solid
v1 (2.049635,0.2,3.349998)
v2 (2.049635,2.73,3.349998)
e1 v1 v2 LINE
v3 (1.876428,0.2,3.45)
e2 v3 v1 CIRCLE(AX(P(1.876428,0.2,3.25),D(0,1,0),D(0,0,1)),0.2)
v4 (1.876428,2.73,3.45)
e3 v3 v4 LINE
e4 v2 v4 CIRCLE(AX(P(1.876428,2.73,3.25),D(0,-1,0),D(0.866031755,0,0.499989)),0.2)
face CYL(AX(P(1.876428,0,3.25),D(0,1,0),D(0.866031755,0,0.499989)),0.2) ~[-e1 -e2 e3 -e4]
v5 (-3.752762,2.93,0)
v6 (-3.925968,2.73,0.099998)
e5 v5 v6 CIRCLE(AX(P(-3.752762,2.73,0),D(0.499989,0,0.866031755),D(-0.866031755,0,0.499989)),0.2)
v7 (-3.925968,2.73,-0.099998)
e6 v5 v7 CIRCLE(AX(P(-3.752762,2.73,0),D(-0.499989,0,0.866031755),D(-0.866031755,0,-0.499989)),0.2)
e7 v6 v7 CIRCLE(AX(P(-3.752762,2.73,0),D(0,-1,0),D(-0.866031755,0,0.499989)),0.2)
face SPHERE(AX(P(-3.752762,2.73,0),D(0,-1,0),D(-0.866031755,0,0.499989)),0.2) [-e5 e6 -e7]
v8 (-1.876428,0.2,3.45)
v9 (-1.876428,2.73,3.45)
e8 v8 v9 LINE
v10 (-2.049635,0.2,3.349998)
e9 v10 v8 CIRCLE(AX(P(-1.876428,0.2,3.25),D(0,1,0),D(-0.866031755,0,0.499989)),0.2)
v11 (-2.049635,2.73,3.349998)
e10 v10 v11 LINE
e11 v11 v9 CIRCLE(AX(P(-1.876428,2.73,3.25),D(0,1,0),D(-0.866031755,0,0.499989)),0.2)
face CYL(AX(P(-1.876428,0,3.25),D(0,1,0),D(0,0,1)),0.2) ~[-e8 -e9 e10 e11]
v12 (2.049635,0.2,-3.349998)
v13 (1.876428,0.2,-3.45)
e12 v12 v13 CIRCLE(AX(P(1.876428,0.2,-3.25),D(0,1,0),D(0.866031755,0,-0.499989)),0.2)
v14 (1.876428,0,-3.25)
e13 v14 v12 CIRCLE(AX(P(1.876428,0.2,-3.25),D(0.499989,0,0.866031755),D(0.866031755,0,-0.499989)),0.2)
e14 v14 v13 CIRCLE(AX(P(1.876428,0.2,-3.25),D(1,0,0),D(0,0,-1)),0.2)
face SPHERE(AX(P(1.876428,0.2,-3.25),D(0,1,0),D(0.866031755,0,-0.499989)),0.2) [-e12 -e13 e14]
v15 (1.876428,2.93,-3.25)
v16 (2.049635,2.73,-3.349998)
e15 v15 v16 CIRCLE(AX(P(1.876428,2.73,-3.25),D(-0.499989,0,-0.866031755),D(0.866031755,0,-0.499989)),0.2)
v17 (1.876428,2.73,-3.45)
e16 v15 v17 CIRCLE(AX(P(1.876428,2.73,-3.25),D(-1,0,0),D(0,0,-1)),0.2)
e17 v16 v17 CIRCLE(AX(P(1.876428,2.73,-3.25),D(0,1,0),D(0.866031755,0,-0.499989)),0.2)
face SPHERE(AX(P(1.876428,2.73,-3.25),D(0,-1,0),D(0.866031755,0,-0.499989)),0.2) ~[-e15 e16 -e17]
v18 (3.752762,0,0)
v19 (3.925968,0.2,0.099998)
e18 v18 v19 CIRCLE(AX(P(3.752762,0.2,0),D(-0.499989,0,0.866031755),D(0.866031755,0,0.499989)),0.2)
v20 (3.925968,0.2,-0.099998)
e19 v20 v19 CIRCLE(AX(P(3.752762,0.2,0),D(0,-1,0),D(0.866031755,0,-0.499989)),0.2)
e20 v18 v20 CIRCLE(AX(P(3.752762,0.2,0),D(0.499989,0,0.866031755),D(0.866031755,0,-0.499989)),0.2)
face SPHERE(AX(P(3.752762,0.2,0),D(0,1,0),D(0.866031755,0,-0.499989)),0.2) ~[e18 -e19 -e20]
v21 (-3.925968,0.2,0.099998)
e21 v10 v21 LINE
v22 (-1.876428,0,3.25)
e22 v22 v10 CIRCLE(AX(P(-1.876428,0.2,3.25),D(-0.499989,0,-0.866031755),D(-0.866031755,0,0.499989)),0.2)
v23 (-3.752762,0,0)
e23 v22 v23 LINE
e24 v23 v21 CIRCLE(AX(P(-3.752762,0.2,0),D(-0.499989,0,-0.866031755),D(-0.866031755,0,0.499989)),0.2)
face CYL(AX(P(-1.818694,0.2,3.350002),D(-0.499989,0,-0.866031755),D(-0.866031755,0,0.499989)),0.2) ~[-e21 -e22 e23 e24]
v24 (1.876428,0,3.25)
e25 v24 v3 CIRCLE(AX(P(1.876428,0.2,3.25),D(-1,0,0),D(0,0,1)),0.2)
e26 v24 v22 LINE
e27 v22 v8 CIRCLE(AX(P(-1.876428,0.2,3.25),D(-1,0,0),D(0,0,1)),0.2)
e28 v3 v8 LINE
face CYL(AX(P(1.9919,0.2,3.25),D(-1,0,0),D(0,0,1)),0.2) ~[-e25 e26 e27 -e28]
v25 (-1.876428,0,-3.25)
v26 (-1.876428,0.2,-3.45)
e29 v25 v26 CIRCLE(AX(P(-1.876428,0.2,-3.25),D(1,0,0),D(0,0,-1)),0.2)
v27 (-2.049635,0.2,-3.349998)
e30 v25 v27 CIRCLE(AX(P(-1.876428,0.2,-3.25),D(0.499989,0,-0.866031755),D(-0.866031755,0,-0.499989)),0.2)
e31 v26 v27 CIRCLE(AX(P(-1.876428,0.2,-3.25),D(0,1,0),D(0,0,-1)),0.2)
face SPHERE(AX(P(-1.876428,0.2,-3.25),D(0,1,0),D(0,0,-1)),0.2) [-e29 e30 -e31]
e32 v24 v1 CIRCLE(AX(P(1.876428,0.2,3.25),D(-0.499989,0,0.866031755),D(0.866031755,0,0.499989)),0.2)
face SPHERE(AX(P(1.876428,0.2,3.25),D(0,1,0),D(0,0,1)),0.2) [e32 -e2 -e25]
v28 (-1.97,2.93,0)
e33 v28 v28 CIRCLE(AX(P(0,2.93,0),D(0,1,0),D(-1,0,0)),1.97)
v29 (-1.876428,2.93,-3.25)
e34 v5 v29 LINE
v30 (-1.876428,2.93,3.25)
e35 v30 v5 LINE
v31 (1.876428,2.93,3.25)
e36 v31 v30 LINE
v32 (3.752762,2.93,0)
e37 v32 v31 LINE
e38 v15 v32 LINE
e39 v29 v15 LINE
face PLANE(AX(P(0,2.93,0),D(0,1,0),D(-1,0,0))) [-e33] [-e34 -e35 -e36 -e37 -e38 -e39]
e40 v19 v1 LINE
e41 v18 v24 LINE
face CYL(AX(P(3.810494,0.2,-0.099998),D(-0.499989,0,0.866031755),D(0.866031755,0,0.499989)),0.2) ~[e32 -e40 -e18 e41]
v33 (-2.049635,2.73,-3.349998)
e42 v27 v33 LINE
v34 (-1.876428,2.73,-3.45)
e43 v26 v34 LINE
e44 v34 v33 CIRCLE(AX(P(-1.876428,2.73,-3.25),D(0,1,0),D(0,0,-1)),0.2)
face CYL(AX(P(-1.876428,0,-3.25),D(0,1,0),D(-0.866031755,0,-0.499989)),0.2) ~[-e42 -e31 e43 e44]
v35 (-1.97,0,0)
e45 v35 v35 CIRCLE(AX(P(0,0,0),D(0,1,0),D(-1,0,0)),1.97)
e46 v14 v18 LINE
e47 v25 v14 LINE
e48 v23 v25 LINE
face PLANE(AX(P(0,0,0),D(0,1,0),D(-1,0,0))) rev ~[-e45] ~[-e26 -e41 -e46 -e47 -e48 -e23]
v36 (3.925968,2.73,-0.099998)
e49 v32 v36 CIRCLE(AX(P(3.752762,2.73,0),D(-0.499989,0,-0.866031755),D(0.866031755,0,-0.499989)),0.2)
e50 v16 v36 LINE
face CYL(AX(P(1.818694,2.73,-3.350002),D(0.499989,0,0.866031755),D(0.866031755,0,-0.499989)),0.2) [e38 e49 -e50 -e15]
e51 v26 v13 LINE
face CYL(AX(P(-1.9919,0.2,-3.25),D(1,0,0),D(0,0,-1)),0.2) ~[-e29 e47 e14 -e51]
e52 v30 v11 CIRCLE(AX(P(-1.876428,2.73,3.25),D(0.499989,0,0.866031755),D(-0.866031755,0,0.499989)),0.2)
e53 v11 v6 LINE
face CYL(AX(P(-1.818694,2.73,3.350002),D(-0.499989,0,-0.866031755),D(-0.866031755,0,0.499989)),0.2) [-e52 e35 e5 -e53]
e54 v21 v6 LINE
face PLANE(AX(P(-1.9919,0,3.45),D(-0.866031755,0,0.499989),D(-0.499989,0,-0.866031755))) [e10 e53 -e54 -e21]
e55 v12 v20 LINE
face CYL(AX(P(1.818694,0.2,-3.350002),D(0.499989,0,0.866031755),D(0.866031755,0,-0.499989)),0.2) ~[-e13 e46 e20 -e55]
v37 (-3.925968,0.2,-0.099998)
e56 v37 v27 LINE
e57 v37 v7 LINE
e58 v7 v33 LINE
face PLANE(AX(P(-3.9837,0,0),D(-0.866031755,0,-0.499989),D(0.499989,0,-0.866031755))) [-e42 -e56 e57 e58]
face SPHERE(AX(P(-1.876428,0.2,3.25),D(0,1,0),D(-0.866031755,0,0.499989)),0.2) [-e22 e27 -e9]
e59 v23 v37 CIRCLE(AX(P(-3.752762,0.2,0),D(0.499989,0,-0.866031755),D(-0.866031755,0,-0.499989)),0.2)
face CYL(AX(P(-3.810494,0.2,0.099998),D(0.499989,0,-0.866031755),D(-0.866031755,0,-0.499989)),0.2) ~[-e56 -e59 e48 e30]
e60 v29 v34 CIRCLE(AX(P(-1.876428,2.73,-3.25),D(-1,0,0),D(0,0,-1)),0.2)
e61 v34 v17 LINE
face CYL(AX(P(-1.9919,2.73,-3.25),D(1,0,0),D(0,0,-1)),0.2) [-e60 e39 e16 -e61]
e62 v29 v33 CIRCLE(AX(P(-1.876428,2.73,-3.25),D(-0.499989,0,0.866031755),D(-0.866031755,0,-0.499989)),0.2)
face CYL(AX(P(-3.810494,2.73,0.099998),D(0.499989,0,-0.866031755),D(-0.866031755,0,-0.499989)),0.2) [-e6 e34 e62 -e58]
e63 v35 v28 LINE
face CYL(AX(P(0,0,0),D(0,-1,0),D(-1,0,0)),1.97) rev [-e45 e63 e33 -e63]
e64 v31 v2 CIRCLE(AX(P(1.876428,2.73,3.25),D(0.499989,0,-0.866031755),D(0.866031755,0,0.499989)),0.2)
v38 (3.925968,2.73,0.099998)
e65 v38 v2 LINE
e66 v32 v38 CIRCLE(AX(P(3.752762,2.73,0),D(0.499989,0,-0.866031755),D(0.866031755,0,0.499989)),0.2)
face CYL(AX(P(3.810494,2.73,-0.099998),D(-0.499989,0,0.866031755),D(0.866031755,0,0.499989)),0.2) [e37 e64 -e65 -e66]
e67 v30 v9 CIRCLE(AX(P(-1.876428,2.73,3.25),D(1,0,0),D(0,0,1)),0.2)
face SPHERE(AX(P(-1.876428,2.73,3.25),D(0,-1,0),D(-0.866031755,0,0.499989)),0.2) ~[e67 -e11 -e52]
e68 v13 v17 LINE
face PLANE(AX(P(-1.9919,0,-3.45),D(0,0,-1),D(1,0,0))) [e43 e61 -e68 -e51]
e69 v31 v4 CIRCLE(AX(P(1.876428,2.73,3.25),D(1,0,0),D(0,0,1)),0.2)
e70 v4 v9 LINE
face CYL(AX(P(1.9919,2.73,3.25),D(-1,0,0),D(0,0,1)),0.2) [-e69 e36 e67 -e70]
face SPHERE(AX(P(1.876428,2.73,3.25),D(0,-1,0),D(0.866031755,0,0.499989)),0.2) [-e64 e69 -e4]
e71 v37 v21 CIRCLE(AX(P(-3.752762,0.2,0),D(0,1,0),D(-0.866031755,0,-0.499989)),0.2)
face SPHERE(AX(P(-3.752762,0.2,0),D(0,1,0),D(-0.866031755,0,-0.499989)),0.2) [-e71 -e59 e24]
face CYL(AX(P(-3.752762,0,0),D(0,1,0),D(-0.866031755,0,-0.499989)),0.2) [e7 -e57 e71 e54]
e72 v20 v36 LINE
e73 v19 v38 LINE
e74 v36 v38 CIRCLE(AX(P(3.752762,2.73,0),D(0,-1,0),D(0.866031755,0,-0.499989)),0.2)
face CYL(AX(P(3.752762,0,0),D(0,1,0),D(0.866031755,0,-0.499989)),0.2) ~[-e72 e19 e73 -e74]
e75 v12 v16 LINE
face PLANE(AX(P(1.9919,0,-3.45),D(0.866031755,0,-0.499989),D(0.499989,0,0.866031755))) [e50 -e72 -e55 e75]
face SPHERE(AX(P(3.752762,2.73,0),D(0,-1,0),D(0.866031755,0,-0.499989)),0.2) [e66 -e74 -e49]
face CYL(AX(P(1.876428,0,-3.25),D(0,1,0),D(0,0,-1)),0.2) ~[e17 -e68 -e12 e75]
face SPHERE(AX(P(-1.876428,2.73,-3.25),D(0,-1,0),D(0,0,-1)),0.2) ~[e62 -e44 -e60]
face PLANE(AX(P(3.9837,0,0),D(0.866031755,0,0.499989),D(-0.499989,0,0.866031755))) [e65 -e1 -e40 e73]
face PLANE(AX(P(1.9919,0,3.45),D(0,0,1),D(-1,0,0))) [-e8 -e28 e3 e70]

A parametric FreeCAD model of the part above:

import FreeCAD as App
import Part
import Sketcher

V = App.Vector
Q = App.Units.Quantity


def edges_at(feature, points):
    """Names of the edges that pass closest to the given points."""
    edges = feature.Shape.Edges
    near = lambda p: min(range(len(edges)), key=lambda i: edges[i].distToShape(Part.Vertex(*p))[0])
    return sorted({f"Edge{near(p) + 1}" for p in points})


def add_polygon(sketch, points):
    """Adds a closed chain of lines whose ends are joined by coincident constraints."""
    first, n = sketch.GeometryCount, len(points)
    for a, b in zip(points, points[1:] + points[:1]):
        sketch.addGeometry(Part.LineSegment(App.Vector(*a, 0), App.Vector(*b, 0)), False)
    for i in range(n):
        sketch.addConstraint(Sketcher.Constraint("Coincident", first + i, 2, first + (i + 1) % n, 1))

doc = App.newDocument("Part")
params = doc.addObject("Spreadsheet::Sheet", "Params")
for row, (alias, value) in enumerate([
    ("sketch1_diameter", "3.94 mm"),
    ("pad1_length", "2.93 mm"),
    ("fillet_radius", "0.2 mm"),
], start=1):
    params.set(f"A{row}", alias)
    params.set(f"B{row}", "=" + value)
    params.setAlias(f"B{row}", alias)

body = doc.addObject("PartDesign::Body", "Body")

# Sketch on XZ plane
sketch1 = body.newObject("Sketcher::SketchObject", "Sketch")
sketch1.AttachmentSupport = (doc.getObject("XZ_Plane"), [""])
sketch1.MapMode = "FlatFace"
add_polygon(sketch1, [(-1.9919, -3.45), (-3.9837, 0), (-1.9919, 3.45), (1.9919, 3.45), (3.9837, 0), (1.9919, -3.45)])  # lines 0-5
sketch1.addGeometry(Part.Circle(V(0, 0, 0), V(0, 0, 1), 1.97), False)  # 6
sketch1.addConstraint([
    Sketcher.Constraint("Horizontal", 2),
    Sketcher.Constraint("Horizontal", 5),
    Sketcher.Constraint("Coincident", 6, 3, -1, 1),
    Sketcher.Constraint("Symmetric", 0, 2, 3, 2, -1, 1),
    Sketcher.Constraint("Symmetric", 1, 2, 4, 2, -1, 1),
    Sketcher.Constraint("PointOnObject", 0, 2, -1),
    Sketcher.Constraint("Parallel", 0, 3),
    Sketcher.Constraint("Vertical", 2, 2, 4, 2),
    Sketcher.Constraint("Diameter", 6, Q("3.94 mm")),
    Sketcher.Constraint("DistanceY", 4, 2, 2, 2, Q("6.9 mm")),
    Sketcher.Constraint("Angle", 0, Q("119.9993 deg")),
    Sketcher.Constraint("DistanceX", 2, 1, 2, 2, Q("3.9838 mm")),
])
sketch1.setExpression("Constraints[14]", "Params.sketch1_diameter")
pad1 = body.newObject("PartDesign::Pad", "Pad")
pad1.Profile = sketch1
pad1.setExpression("Length", "Params.pad1_length")
pad1.Reversed = True
doc.recompute()

fillet = body.newObject("PartDesign::Fillet", "Fillet")
fillet.Base = (pad1, edges_at(pad1, [
    (2.988, 2.93, 1.725),
    (0, 2.93, 3.45),
    (1.992, 1.465, 3.45),
    (0, 0, 3.45),
    (-1.992, 1.465, 3.45),
    (2.988, 0, 1.725),
    (3.984, 1.465, 0),
    (1.992, 1.465, -3.45),
    (2.988, 2.93, -1.725),
    (2.988, 0, -1.725),
    (-1.992, 1.465, -3.45),
    (0, 2.93, -3.45),
    (0, 0, -3.45),
    (-2.988, 2.93, 1.725),
    (-2.988, 2.93, -1.725),
    (-3.984, 1.465, 0),
    (-2.988, 0, -1.725),
    (-2.988, 0, 1.725),
]))
fillet.setExpression("Radius", "Params.fillet_radius")

doc.recompute()
